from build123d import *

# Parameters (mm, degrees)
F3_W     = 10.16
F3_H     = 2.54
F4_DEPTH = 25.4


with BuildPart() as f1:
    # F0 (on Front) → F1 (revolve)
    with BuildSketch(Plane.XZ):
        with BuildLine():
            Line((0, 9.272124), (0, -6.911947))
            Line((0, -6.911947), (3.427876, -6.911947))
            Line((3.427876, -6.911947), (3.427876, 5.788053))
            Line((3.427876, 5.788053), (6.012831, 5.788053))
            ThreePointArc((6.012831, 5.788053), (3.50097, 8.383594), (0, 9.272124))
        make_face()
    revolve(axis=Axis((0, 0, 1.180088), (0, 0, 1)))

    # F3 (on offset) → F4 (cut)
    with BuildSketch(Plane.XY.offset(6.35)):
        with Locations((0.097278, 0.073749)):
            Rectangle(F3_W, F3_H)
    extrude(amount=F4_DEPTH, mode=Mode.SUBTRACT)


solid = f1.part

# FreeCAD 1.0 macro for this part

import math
import FreeCAD as App
import Part
import Sketcher
Q = App.Units.Quantity


def add_polygon(sketch, points):
    """Adds a closed chain of lines whose ends are joined by coincident constraints."""
    first, n = sketch.GeometryCount, len(points)
    for a, b in zip(points, points[1:] + points[:1]):
        sketch.addGeometry(Part.LineSegment(App.Vector(*a, 0), App.Vector(*b, 0)), False)
    for i in range(n):
        sketch.addConstraint(Sketcher.Constraint("Coincident", first + i, 2, first + (i + 1) % n, 1))

doc = App.newDocument("Part")
body = doc.addObject("PartDesign::Body", "Body")

# Sketch on XZ plane
sketch1 = body.newObject("Sketcher::SketchObject", "Sketch")
sketch1.AttachmentSupport = (doc.getObject("XZ_Plane"), [""])
sketch1.MapMode = "FlatFace"
sketch1.addGeometry([
    Part.LineSegment(App.Vector(0, 9.3, 0), App.Vector(0, -6.9, 0)),  # 0
    Part.LineSegment(App.Vector(0, -6.9, 0), App.Vector(3.4, -6.9, 0)),  # 1
    Part.LineSegment(App.Vector(3.4, -6.9, 0), App.Vector(3.4, 5.8, 0)),  # 2
    Part.LineSegment(App.Vector(3.4, 5.8, 0), App.Vector(6, 5.8, 0)),  # 3
    Part.ArcOfCircle(Part.Circle(App.Vector(0.2, 2.7, 0), App.Vector(0, 0, 1), 6.6), math.radians(28), math.radians(92)),  # 4
], False)
sketch1.addConstraint([
    Sketcher.Constraint("Coincident", 0, 2, 1, 1),
    Sketcher.Constraint("Coincident", 1, 2, 2, 1),
    Sketcher.Constraint("Coincident", 2, 2, 3, 1),
    Sketcher.Constraint("Coincident", 3, 2, 4, 1),
    Sketcher.Constraint("Coincident", 4, 2, 0, 1),
    Sketcher.Constraint("Vertical", 0),
    Sketcher.Constraint("Horizontal", 1),
    Sketcher.Constraint("Vertical", 2),
    Sketcher.Constraint("Horizontal", 3),
    Sketcher.Constraint("PointOnObject", 0, 2, -2),
    Sketcher.Constraint("DistanceY", 2, 1, 2, 2, Q("0.5 in")),
    Sketcher.Constraint("Radius", 4, Q("6.612836 mm")),
    Sketcher.Constraint("DistanceY", 0, 2, 0, 1, Q("16.184071 mm")),
    Sketcher.Constraint("DistanceX", 1, 1, 1, 2, Q("3.427876 mm")),
    Sketcher.Constraint("DistanceX", 3, 1, 3, 2, Q("2.584955 mm")),
    Sketcher.Constraint("DistanceY", -1, 1, 4, 3, Q("2.661893 mm")),
])
revolution = body.newObject("PartDesign::Revolution", "Revolution")
revolution.Profile = sketch1
revolution.ReferenceAxis = (sketch1, ["V_Axis"])
revolution.Angle = 360

# Sketch on XY plane
sketch2 = body.newObject("Sketcher::SketchObject", "Sketch001")
sketch2.AttachmentSupport = (doc.getObject("XY_Plane"), [""])
sketch2.MapMode = "FlatFace"
sketch2.AttachmentOffset = App.Placement(App.Vector(0, 0, 0.25 * 25.4), App.Rotation())
add_polygon(sketch2, [(-5, 1.3), (-5, -1.2), (5.2, -1.2), (5.2, 1.3)])  # lines 0-3
sketch2.addConstraint([
    Sketcher.Constraint("Vertical", 0),
    Sketcher.Constraint("Horizontal", 1),
    Sketcher.Constraint("Vertical", 2),
    Sketcher.Constraint("Horizontal", 3),
    Sketcher.Constraint("DistanceX", 1, 1, 1, 2, Q("0.4 in")),
    Sketcher.Constraint("DistanceY", 0, 2, 0, 1, Q("0.1 in")),
    Sketcher.Constraint("DistanceY", 0, 2, -1, 1, Q("1.196251 mm")),
    Sketcher.Constraint("DistanceX", -1, 1, 1, 2, Q("5.177278 mm")),
])
pocket1 = body.newObject("PartDesign::Pocket", "Pocket")
pocket1.Profile = sketch2
pocket1.Length = Q("1 in")
pocket1.Reversed = True

doc.recompute()
